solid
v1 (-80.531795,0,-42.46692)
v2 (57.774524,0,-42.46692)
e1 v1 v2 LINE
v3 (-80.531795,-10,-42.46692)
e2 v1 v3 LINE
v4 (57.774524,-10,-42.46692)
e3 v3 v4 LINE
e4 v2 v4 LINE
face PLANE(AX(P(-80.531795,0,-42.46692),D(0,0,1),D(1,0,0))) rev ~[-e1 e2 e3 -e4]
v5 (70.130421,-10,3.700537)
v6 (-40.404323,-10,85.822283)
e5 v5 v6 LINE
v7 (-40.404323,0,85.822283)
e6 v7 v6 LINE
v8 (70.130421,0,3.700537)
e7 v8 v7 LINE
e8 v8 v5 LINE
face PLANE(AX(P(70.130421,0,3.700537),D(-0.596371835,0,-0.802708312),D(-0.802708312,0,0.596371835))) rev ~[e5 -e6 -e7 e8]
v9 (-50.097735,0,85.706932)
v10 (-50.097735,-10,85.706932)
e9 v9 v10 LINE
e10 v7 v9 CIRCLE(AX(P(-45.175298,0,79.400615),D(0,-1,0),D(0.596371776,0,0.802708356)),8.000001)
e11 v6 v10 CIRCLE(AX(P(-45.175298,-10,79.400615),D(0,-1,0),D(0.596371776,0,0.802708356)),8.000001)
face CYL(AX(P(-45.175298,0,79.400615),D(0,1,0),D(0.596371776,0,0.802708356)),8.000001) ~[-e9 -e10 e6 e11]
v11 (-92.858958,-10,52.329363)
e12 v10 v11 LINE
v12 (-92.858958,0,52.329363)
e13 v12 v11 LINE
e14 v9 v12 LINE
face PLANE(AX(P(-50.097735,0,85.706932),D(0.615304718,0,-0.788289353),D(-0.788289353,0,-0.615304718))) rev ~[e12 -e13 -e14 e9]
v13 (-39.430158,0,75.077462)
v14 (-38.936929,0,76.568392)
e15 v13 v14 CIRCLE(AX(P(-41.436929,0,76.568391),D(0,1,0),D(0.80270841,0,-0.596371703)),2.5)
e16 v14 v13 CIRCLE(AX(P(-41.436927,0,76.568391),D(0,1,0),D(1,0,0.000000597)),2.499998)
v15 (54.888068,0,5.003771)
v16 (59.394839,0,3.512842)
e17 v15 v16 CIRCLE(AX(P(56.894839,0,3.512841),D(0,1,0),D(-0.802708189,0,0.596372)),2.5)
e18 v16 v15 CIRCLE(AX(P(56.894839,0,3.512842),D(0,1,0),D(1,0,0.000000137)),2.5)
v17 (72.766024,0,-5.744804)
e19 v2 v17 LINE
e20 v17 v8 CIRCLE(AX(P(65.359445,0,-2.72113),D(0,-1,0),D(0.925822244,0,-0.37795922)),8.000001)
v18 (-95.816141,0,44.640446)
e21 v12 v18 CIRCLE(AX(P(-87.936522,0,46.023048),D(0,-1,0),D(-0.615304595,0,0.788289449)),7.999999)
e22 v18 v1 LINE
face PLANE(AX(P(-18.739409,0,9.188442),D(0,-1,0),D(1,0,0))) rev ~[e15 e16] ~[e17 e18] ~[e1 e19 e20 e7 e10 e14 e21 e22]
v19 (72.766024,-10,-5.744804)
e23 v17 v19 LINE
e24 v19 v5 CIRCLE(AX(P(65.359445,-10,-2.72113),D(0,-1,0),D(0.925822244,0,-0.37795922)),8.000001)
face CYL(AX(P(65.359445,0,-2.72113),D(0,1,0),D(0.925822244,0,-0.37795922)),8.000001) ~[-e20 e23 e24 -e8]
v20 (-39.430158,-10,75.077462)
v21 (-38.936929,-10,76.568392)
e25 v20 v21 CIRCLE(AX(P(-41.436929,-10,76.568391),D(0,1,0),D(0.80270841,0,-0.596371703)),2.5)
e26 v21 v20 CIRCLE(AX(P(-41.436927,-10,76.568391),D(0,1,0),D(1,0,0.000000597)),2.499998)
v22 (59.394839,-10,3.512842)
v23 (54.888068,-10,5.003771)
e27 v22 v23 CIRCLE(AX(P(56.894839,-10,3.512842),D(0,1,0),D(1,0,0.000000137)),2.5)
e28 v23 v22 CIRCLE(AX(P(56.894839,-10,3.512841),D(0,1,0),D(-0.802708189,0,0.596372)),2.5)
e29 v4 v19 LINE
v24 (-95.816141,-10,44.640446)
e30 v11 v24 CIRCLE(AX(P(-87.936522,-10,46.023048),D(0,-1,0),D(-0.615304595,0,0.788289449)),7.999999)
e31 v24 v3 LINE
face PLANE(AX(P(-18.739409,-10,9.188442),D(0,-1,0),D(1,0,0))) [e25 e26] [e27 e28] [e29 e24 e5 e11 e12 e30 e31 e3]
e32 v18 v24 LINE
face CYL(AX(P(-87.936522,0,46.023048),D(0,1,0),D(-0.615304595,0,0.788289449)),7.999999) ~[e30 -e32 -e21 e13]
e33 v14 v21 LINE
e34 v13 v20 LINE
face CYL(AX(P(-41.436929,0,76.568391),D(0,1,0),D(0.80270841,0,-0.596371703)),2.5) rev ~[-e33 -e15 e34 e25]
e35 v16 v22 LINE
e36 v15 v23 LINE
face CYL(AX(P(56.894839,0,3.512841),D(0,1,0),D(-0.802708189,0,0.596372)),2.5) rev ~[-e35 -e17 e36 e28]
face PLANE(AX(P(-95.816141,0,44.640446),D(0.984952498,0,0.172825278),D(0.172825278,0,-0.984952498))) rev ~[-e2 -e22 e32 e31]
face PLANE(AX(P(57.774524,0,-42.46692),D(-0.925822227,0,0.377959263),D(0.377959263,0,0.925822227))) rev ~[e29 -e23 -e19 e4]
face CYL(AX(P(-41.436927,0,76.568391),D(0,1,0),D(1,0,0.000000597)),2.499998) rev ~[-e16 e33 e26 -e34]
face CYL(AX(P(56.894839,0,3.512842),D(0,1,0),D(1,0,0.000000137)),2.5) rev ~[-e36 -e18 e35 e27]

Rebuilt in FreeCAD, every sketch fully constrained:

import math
import FreeCAD as App
import Part
import Sketcher
Q = App.Units.Quantity

doc = App.newDocument("Part")
body = doc.addObject("PartDesign::Body", "Body")

sketch1 = body.newObject("Sketcher::SketchObject", "Sketch")
sketch1.AttachmentSupport = (doc.getObject("XZ_Plane"), [""])
sketch1.MapMode = "FlatFace"
sketch1.addGeometry(Part.ArcOfCircle(Part.Circle(App.Vector(-45.175298, 79.400615, 0), App.Vector(0, 0, 1), 8.000001), math.radians(53.389515), math.radians(127.974053)), False)
sketch1.addGeometry(Part.LineSegment(App.Vector(-50.097735, 85.706932, 0), App.Vector(-92.858958, 52.329363, 0)), False)
sketch1.addGeometry(Part.ArcOfCircle(Part.Circle(App.Vector(-87.936522, 46.023048, 0), App.Vector(0, 0, 1), 7.999999), math.radians(127.974056), math.radians(189.952126)), False)
sketch1.addGeometry(Part.LineSegment(App.Vector(-95.816141, 44.640446, 0), App.Vector(-80.531795, -42.46692, 0)), False)
sketch1.addGeometry(Part.LineSegment(App.Vector(-80.531795, -42.46692, 0), App.Vector(57.774524, -42.46692, 0)), False)
sketch1.addGeometry(Part.LineSegment(App.Vector(57.774524, -42.46692, 0), App.Vector(72.766024, -5.744804, 0)), False)
sketch1.addGeometry(Part.ArcOfCircle(Part.Circle(App.Vector(65.359445, -2.72113, 0), App.Vector(0, 0, 1), 8.000001), math.radians(-22.207329), math.radians(53.389506)), False)
sketch1.addGeometry(Part.LineSegment(App.Vector(70.130421, 3.700537, 0), App.Vector(-40.404323, 85.822283, 0)), False)
sketch1.addGeometry(Part.ArcOfCircle(Part.Circle(App.Vector(56.894839, 3.512841, 0), App.Vector(0, 0, 1), 2.5), math.radians(0.000027), math.radians(143.389499)), False)
sketch1.addGeometry(Part.ArcOfCircle(Part.Circle(App.Vector(56.894839, 3.512842, 0), App.Vector(0, 0, 1), 2.5), math.radians(143.389518), math.radians(360.000008)), False)
sketch1.addGeometry(Part.ArcOfCircle(Part.Circle(App.Vector(-41.436927, 76.568391, 0), App.Vector(0, 0, 1), 2.499998), math.radians(-36.610499), math.radians(0.000034)), False)
sketch1.addGeometry(Part.ArcOfCircle(Part.Circle(App.Vector(-41.436929, 76.568391, 0), App.Vector(0, 0, 1), 2.5), math.radians(0.000015), math.radians(323.38952)), False)
sketch1.addConstraint(Sketcher.Constraint("Coincident", 0, 2, 1, 1))
sketch1.addConstraint(Sketcher.Constraint("Coincident", 1, 2, 2, 1))
sketch1.addConstraint(Sketcher.Constraint("Coincident", 2, 2, 3, 1))
sketch1.addConstraint(Sketcher.Constraint("Coincident", 3, 2, 4, 1))
sketch1.addConstraint(Sketcher.Constraint("Coincident", 4, 2, 5, 1))
sketch1.addConstraint(Sketcher.Constraint("Coincident", 5, 2, 6, 1))
sketch1.addConstraint(Sketcher.Constraint("Coincident", 6, 2, 7, 1))
sketch1.addConstraint(Sketcher.Constraint("Coincident", 7, 2, 0, 1))
sketch1.addConstraint(Sketcher.Constraint("Coincident", 8, 1, 9, 2))
sketch1.addConstraint(Sketcher.Constraint("Coincident", 9, 1, 8, 2))
sketch1.addConstraint(Sketcher.Constraint("Coincident", 10, 1, 11, 2))
sketch1.addConstraint(Sketcher.Constraint("Coincident", 11, 1, 10, 2))
sketch1.addConstraint(Sketcher.Constraint("Horizontal", 4))
sketch1.addConstraint(Sketcher.Constraint("Radius", 0, Q("8.000001 mm")))
sketch1.addConstraint(Sketcher.Constraint("Radius", 2, Q("7.999999 mm")))
sketch1.addConstraint(Sketcher.Constraint("Radius", 6, Q("8.000001 mm")))
sketch1.addConstraint(Sketcher.Constraint("Radius", 8, Q("2.5 mm")))
sketch1.addConstraint(Sketcher.Constraint("Radius", 9, Q("2.5 mm")))
sketch1.addConstraint(Sketcher.Constraint("Radius", 11, Q("2.5 mm")))
sketch1.addConstraint(Sketcher.Constraint("Radius", 10, Q("2.499998 mm")))
sketch1.addConstraint(Sketcher.Constraint("DistanceX", 4, 1, 4, 2, Q("138.306319 mm")))
sketch1.addConstraint(Sketcher.Constraint("DistanceY", 2, 2, 2, 3, Q("1.382602 mm")))
sketch1.addConstraint(Sketcher.Constraint("DistanceX", 4, 2, 5, 2, Q("14.9915 mm")))
sketch1.addConstraint(Sketcher.Constraint("DistanceX", 2, 3, 7, 2, Q("47.532199 mm")))
sketch1.addConstraint(Sketcher.Constraint("DistanceY", 6, 3, 9, 1, Q("7.724901 mm")))
sketch1.addConstraint(Sketcher.Constraint("Distance", 3, Q("88.438139 mm")))
sketch1.addConstraint(Sketcher.Constraint("DistanceX", 2, 3, -1, 1, Q("87.936522 mm")))
sketch1.addConstraint(Sketcher.Constraint("DistanceY", 6, 3, -1, 1, Q("2.72113 mm")))
sketch1.addConstraint(Sketcher.Constraint("DistanceX", -1, 1, 8, 3, Q("56.894839 mm")))
sketch1.addConstraint(Sketcher.Constraint("DistanceY", -1, 1, 8, 3, Q("3.512841 mm")))
sketch1.addConstraint(Sketcher.Constraint("DistanceY", -1, 1, 10, 3, Q("76.568391 mm")))
sketch1.addConstraint(Sketcher.Constraint("DistanceX", 11, 3, -1, 1, Q("41.436929 mm")))
sketch1.addConstraint(Sketcher.Constraint("DistanceX", 1, 2, -1, 1, Q("92.858958 mm")))
sketch1.addConstraint(Sketcher.Constraint("DistanceY", 3, 2, -1, 1, Q("42.46692 mm")))
sketch1.addConstraint(Sketcher.Constraint("DistanceX", -1, 1, 6, 2, Q("70.130421 mm")))
sketch1.addConstraint(Sketcher.Constraint("DistanceY", -1, 1, 8, 1, Q("3.512842 mm")))
sketch1.addConstraint(Sketcher.Constraint("DistanceX", 10, 1, -1, 1, Q("39.430158 mm")))
sketch1.addConstraint(Sketcher.Constraint("DistanceX", 0, 3, 10, 3, Q("3.738371 mm")))
sketch1.addConstraint(Sketcher.Constraint("DistanceX", 10, 3, 6, 3, Q("106.796372 mm")))
sketch1.addConstraint(Sketcher.Constraint("DistanceY", 11, 3, 0, 2, Q("9.138541 mm")))
sketch1.addConstraint(Sketcher.Constraint("DistanceX", 0, 2, 10, 3, Q("8.660808 mm")))
sketch1.addConstraint(Sketcher.Constraint("DistanceY", 1, 2, 0, 2, Q("33.377569 mm")))
sketch1.addConstraint(Sketcher.Constraint("DistanceY", 10, 1, 11, 1, Q("1.49093 mm")))
pad1 = body.newObject("PartDesign::Pad", "Pad")
pad1.Profile = sketch1
pad1.Length = 10

doc.recompute()
